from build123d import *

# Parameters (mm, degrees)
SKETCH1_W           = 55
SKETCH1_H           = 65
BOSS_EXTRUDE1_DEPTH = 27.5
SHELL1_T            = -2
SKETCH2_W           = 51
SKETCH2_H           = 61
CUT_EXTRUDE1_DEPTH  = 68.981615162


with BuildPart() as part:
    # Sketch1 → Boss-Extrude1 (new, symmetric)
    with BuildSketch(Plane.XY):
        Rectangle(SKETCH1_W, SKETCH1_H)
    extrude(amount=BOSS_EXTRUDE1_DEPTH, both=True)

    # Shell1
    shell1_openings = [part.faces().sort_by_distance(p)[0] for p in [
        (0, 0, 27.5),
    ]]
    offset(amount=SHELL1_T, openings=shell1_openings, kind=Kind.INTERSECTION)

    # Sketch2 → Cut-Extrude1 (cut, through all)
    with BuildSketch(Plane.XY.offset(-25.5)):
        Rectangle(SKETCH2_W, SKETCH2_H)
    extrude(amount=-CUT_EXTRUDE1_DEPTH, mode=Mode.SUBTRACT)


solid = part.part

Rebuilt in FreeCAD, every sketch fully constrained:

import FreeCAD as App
import Part
import Sketcher
Q = App.Units.Quantity


def faces_at(feature, points):
    """Names of the faces that lie closest to the given points."""
    faces = feature.Shape.Faces
    near = lambda p: min(range(len(faces)), key=lambda i: faces[i].distToShape(Part.Vertex(*p))[0])
    return sorted({f"Face{near(p) + 1}" for p in points})

doc = App.newDocument("Part")
body = doc.addObject("PartDesign::Body", "Body")

# Sketch on XY plane
sketch1 = body.newObject("Sketcher::SketchObject", "Sketch")
sketch1.AttachmentSupport = (doc.getObject("XY_Plane"), [""])
sketch1.MapMode = "FlatFace"
sketch1.addGeometry([
    Part.LineSegment(App.Vector(-28, 32, 0), App.Vector(-28, -32, 0)),
    Part.LineSegment(App.Vector(-28, -32, 0), App.Vector(28, -32, 0)),
    Part.LineSegment(App.Vector(28, -32, 0), App.Vector(28, 32, 0)),
    Part.LineSegment(App.Vector(28, 32, 0), App.Vector(-28, 32, 0)),
], False)
sketch1.addConstraint([
    Sketcher.Constraint("Coincident", 0, 2, 1, 1),
    Sketcher.Constraint("Coincident", 1, 2, 2, 1),
    Sketcher.Constraint("Coincident", 2, 2, 3, 1),
    Sketcher.Constraint("Coincident", 3, 2, 0, 1),
    Sketcher.Constraint("Vertical", 0),
    Sketcher.Constraint("Horizontal", 1),
    Sketcher.Constraint("Vertical", 2),
    Sketcher.Constraint("Horizontal", 3),
    Sketcher.Constraint("Symmetric", 0, 2, 2, 2, -1, 1),
    Sketcher.Constraint("DistanceX", 1, 1, 1, 2, Q("55 mm")),
    Sketcher.Constraint("DistanceY", 0, 2, 0, 1, Q("65 mm")),
])
pad1 = body.newObject("PartDesign::Pad", "Pad")
pad1.Profile = sketch1
pad1.Length = 55
pad1.Midplane = True
doc.recompute()

thickness = body.newObject("PartDesign::Thickness", "Thickness")
thickness.Base = (pad1, faces_at(pad1, [(0, 0, 27.5)]))
thickness.Value = 2
thickness.Reversed = True
thickness.Join = "Intersection"

# Sketch on XY plane
sketch2 = body.newObject("Sketcher::SketchObject", "Sketch001")
sketch2.AttachmentSupport = (doc.getObject("XY_Plane"), [""])
sketch2.MapMode = "FlatFace"
sketch2.AttachmentOffset = App.Placement(App.Vector(0, 0, -25.5), App.Rotation())
sketch2.addGeometry([
    Part.LineSegment(App.Vector(-26, 30, 0), App.Vector(-26, -30, 0)),
    Part.LineSegment(App.Vector(-26, -30, 0), App.Vector(26, -30, 0)),
    Part.LineSegment(App.Vector(26, -30, 0), App.Vector(26, 30, 0)),
    Part.LineSegment(App.Vector(26, 30, 0), App.Vector(-26, 30, 0)),
], False)
sketch2.addConstraint([
    Sketcher.Constraint("Coincident", 0, 2, 1, 1),
    Sketcher.Constraint("Coincident", 1, 2, 2, 1),
    Sketcher.Constraint("Coincident", 2, 2, 3, 1),
    Sketcher.Constraint("Coincident", 3, 2, 0, 1),
    Sketcher.Constraint("Vertical", 0),
    Sketcher.Constraint("Horizontal", 1),
    Sketcher.Constraint("Vertical", 2),
    Sketcher.Constraint("Horizontal", 3),
    Sketcher.Constraint("Symmetric", 0, 2, 2, 2, -1, 1),
    Sketcher.Constraint("DistanceX", 1, 1, 1, 2, Q("51 mm")),
    Sketcher.Constraint("DistanceY", 0, 2, 0, 1, Q("61 mm")),
])
pocket1 = body.newObject("PartDesign::Pocket", "Pocket")
pocket1.Profile = sketch2
pocket1.Type = "ThroughAll"

doc.recompute()
